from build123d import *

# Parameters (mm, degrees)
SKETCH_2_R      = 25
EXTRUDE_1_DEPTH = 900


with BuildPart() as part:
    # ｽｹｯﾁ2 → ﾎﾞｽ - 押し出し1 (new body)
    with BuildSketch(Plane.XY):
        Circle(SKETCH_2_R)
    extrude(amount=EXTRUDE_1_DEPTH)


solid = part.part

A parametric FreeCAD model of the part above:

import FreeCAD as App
import Part
import Sketcher

V = App.Vector
Q = App.Units.Quantity

doc = App.newDocument("Part")
body = doc.addObject("PartDesign::Body", "Body")

sketch1 = doc.addObject("Sketcher::SketchObject", "Sketch")
body.addObject(sketch1)
sketch1.AttachmentSupport = (doc.XY_Plane, [""])
sketch1.MapMode = "FlatFace"
sketch1.addGeometry(Part.Circle(V(0, 0, 0), V(0, 0, 1), 25), False)
sketch1.addConstraint(Sketcher.Constraint("Coincident", 0, 3, -1, 1))
sketch1.addConstraint(Sketcher.Constraint("Diameter", 0, Q("50 mm")))
pad1 = doc.addObject("PartDesign::Pad", "Pad")
body.addObject(pad1)
pad1.Profile = sketch1
pad1.Length = 900

doc.recompute()
